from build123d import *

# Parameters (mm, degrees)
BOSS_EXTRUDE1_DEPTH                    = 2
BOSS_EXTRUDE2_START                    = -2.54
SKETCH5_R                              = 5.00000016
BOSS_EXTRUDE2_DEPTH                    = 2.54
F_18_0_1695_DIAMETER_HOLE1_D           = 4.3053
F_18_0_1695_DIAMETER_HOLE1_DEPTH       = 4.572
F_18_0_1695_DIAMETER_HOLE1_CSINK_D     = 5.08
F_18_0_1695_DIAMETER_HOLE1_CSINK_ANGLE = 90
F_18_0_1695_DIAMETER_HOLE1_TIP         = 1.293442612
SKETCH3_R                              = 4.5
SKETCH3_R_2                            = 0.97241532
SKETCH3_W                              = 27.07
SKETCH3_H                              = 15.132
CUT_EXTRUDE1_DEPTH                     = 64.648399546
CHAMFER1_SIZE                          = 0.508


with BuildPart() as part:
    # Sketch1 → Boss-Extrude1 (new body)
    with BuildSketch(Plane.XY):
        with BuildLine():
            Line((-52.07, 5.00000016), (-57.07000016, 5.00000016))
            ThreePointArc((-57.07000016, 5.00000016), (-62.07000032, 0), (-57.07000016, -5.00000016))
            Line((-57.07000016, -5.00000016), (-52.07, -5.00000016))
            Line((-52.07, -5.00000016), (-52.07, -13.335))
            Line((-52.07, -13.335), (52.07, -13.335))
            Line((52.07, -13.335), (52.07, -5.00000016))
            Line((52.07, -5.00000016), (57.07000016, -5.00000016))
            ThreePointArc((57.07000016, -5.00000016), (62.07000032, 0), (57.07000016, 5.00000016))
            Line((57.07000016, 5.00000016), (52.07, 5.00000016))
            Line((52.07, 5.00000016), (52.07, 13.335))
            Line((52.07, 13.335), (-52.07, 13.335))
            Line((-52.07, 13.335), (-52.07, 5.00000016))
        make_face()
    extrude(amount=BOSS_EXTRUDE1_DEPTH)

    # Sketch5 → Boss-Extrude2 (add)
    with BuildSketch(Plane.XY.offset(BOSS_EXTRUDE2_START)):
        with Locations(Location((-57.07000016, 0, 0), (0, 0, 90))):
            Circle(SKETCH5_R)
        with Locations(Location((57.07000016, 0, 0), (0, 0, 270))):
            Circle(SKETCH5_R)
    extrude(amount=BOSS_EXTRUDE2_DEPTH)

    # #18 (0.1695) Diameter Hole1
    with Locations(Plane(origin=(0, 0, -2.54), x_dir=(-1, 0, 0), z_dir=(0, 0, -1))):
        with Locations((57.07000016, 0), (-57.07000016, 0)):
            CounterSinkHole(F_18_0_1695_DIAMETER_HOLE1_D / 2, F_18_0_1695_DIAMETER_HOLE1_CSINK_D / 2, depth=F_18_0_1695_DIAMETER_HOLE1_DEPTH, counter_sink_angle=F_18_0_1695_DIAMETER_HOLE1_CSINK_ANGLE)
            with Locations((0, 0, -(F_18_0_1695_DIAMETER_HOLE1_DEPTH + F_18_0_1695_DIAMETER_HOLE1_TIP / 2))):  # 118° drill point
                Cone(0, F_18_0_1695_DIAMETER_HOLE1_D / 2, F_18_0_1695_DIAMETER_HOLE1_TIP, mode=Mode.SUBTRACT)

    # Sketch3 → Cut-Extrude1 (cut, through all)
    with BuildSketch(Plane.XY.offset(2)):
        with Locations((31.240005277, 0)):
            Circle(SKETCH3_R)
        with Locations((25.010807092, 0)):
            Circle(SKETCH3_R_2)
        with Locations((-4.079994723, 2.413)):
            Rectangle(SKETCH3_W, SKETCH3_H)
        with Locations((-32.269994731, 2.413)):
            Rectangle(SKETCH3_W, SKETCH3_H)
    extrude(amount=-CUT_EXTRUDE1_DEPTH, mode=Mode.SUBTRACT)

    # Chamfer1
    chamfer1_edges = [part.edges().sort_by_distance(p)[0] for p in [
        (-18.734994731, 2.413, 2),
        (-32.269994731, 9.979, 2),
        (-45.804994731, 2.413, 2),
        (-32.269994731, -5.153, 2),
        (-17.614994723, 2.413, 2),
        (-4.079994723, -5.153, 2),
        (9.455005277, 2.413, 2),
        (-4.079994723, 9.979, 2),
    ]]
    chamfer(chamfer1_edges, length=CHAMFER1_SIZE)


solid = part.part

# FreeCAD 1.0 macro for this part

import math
import FreeCAD as App
import Part
import Sketcher
from FreeCAD import Vector
Q = App.Units.Quantity


def edges_at(feature, points):
    """Names of the edges that pass closest to the given points."""
    edges = feature.Shape.Edges
    near = lambda p: min(range(len(edges)), key=lambda i: edges[i].distToShape(Part.Vertex(*p))[0])
    return sorted({f"Edge{near(p) + 1}" for p in points})


def add_polygon(sketch, points):
    """Adds a closed chain of lines whose ends are joined by coincident constraints."""
    first, n = sketch.GeometryCount, len(points)
    for a, b in zip(points, points[1:] + points[:1]):
        sketch.addGeometry(Part.LineSegment(App.Vector(*a, 0), App.Vector(*b, 0)), False)
    for i in range(n):
        sketch.addConstraint(Sketcher.Constraint("Coincident", first + i, 2, first + (i + 1) % n, 1))

doc = App.newDocument("Part")
body = doc.addObject("PartDesign::Body", "Body")

# Sketch on XY plane
sketch1 = body.newObject("Sketcher::SketchObject", "Sketch")
sketch1.AttachmentSupport = (doc.getObject("XY_Plane"), [""])
sketch1.MapMode = "FlatFace"
sketch1.addGeometry([
    Part.LineSegment(Vector(-52, 5, 0), Vector(-57, 5, 0)),  # 0
    Part.ArcOfCircle(Part.Circle(Vector(-57, 0, 0), Vector(0, 0, 1), 5), math.radians(90), math.radians(270)),  # 1
    Part.LineSegment(Vector(-57, -5, 0), Vector(-52, -5, 0)),  # 2
    Part.LineSegment(Vector(-52, -5, 0), Vector(-52, -13, 0)),  # 3
    Part.LineSegment(Vector(-52, -13, 0), Vector(52, -13, 0)),  # 4
    Part.LineSegment(Vector(52, -13, 0), Vector(52, -5, 0)),  # 5
    Part.LineSegment(Vector(52, -5, 0), Vector(57, -5, 0)),  # 6
    Part.ArcOfCircle(Part.Circle(Vector(57, 0, 0), Vector(0, 0, 1), 5), math.radians(-90), math.radians(90)),  # 7
    Part.LineSegment(Vector(57, 5, 0), Vector(52, 5, 0)),  # 8
    Part.LineSegment(Vector(52, 5, 0), Vector(52, 13, 0)),  # 9
    Part.LineSegment(Vector(52, 13, 0), Vector(-52, 13, 0)),  # 10
    Part.LineSegment(Vector(-52, 13, 0), Vector(-52, 5, 0)),  # 11
], False)
sketch1.addConstraint([
    Sketcher.Constraint("Tangent", 0, 2, 1, 1),
    Sketcher.Constraint("Tangent", 1, 2, 2, 1),
    Sketcher.Constraint("Coincident", 2, 2, 3, 1),
    Sketcher.Constraint("Coincident", 3, 2, 4, 1),
    Sketcher.Constraint("Coincident", 4, 2, 5, 1),
    Sketcher.Constraint("Coincident", 5, 2, 6, 1),
    Sketcher.Constraint("Tangent", 6, 2, 7, 1),
    Sketcher.Constraint("Tangent", 7, 2, 8, 1),
    Sketcher.Constraint("Coincident", 8, 2, 9, 1),
    Sketcher.Constraint("Coincident", 9, 2, 10, 1),
    Sketcher.Constraint("Coincident", 10, 2, 11, 1),
    Sketcher.Constraint("Coincident", 11, 2, 0, 1),
    Sketcher.Constraint("Horizontal", 0),
    Sketcher.Constraint("Horizontal", 2),
    Sketcher.Constraint("Vertical", 3),
    Sketcher.Constraint("Horizontal", 4),
    Sketcher.Constraint("Vertical", 5),
    Sketcher.Constraint("Horizontal", 6),
    Sketcher.Constraint("Horizontal", 8),
    Sketcher.Constraint("Vertical", 9),
    Sketcher.Constraint("Horizontal", 10),
    Sketcher.Constraint("Vertical", 11),
    Sketcher.Constraint("Equal", 1, 7),
    Sketcher.Constraint("Symmetric", 1, 3, 7, 3, -1, 1),
    Sketcher.Constraint("Symmetric", 3, 2, 9, 2, -1, 1),
    Sketcher.Constraint("Symmetric", 2, 2, 5, 2, -2),
    Sketcher.Constraint("Vertical", 3, 2, 10, 2),
    Sketcher.Constraint("Radius", 1, Q("5 mm")),
    Sketcher.Constraint("DistanceX", 0, 2, 0, 1, Q("5 mm")),
    Sketcher.Constraint("DistanceX", 4, 1, 4, 2, Q("104.14 mm")),
    Sketcher.Constraint("DistanceY", 3, 2, 3, 1, Q("8.335 mm")),
])
pad1 = body.newObject("PartDesign::Pad", "Pad")
pad1.Profile = sketch1
pad1.Length = 2

# Sketch on XY plane
sketch2 = body.newObject("Sketcher::SketchObject", "Sketch001")
sketch2.AttachmentSupport = (doc.getObject("XY_Plane"), [""])
sketch2.MapMode = "FlatFace"
sketch2.AttachmentOffset = App.Placement(Vector(0, 0, -2.54), App.Rotation())
sketch2.addGeometry([
    Part.Circle(Vector(-57, 0, 0), Vector(0, 0, 1), 5),
    Part.Circle(Vector(57, 0, 0), Vector(0, 0, 1), 5),
], False)
sketch2.addConstraint([
    Sketcher.Constraint("Equal", 0, 1),
    Sketcher.Constraint("Symmetric", 0, 3, 1, 3, -1, 1),
    Sketcher.Constraint("PointOnObject", 0, 3, -1),
    Sketcher.Constraint("Diameter", 0, Q("10 mm")),
    Sketcher.Constraint("DistanceX", 0, 3, -1, 1, Q("57.07 mm")),
])
pad2 = body.newObject("PartDesign::Pad", "Pad001")
pad2.Profile = sketch2
pad2.Length = 2.54

# Sketch on XY plane
sketch3 = body.newObject("Sketcher::SketchObject", "Sketch002")
sketch3.AttachmentSupport = (doc.getObject("XY_Plane"), [""])
sketch3.MapMode = "FlatFace"
sketch3.AttachmentOffset = App.Placement(Vector(0, 0, -2.54), App.Rotation())
sketch3.addGeometry([
    Part.Circle(Vector(-57.1, 0, 0), Vector(0, 0, 1), 2.2),
    Part.Circle(Vector(57.1, 0, 0), Vector(0, 0, 1), 2.2),
], False)
sketch3.addConstraint([
    Sketcher.Constraint("Equal", 0, 1),
    Sketcher.Constraint("Symmetric", 0, 3, 1, 3, -1, 1),
    Sketcher.Constraint("PointOnObject", 0, 3, -1),
    Sketcher.Constraint("Diameter", 0, Q("4.3053 mm")),
    Sketcher.Constraint("DistanceX", 0, 3, -1, 1, Q("57.07 mm")),
])
doc.recompute()
hole = body.newObject("PartDesign::Hole", "Hole")
hole.Profile = sketch3
hole.ThreadType = "None"
hole.Diameter = 4.3053
hole.DepthType = "Dimension"
hole.Depth = 4.572
hole.DrillPoint = "Angled"
hole.DrillPointAngle = 118
hole.HoleCutType = "Countersink"
hole.HoleCutDiameter = 5.08
hole.HoleCutCountersinkAngle = 90
hole.Reversed = True

# Sketch on XY plane
sketch4 = body.newObject("Sketcher::SketchObject", "Sketch003")
sketch4.AttachmentSupport = (doc.getObject("XY_Plane"), [""])
sketch4.MapMode = "FlatFace"
sketch4.AttachmentOffset = App.Placement(Vector(0, 0, 2), App.Rotation())
sketch4.addGeometry(Part.Circle(Vector(31.2, 0, 0), Vector(0, 0, 1), 4.5), False)  # 0
sketch4.addGeometry(Part.Circle(Vector(25, 0, 0), Vector(0, 0, 1), 1), False)  # 1
add_polygon(sketch4, [(-17.6, 10), (-17.6, -5.2), (9.5, -5.2), (9.5, 10)])  # lines 2-5
add_polygon(sketch4, [(-45.8, 10), (-45.8, -5.2), (-18.7, -5.2), (-18.7, 10)])  # lines 6-9
sketch4.addConstraint([
    Sketcher.Constraint("Vertical", 2),
    Sketcher.Constraint("Horizontal", 3),
    Sketcher.Constraint("Vertical", 4),
    Sketcher.Constraint("Horizontal", 5),
    Sketcher.Constraint("Vertical", 6),
    Sketcher.Constraint("Horizontal", 7),
    Sketcher.Constraint("Vertical", 8),
    Sketcher.Constraint("Horizontal", 9),
    Sketcher.Constraint("PointOnObject", 0, 3, -1),
    Sketcher.Constraint("PointOnObject", 1, 3, -1),
    Sketcher.Constraint("Horizontal", 3, 2, 6, 2),
    Sketcher.Constraint("Horizontal", 5, 2, 8, 2),
    Sketcher.Constraint("Equal", 5, 7),
    Sketcher.Constraint("Diameter", 0, Q("9 mm")),
    Sketcher.Constraint("DistanceX", 3, 1, 3, 2, Q("27.07 mm")),
    Sketcher.Constraint("Diameter", 1, Q("1.944831 mm")),
    Sketcher.Constraint("DistanceY", 2, 2, 2, 1, Q("15.132 mm")),
    Sketcher.Constraint("DistanceX", 6, 2, 2, 2, Q("28.19 mm")),
    Sketcher.Constraint("DistanceY", 2, 2, -1, 1, Q("5.153 mm")),
    Sketcher.Constraint("DistanceX", 2, 2, 0, 3, Q("48.855 mm")),
    Sketcher.Constraint("DistanceX", 1, 3, 0, 3, Q("6.229198 mm")),
    Sketcher.Constraint("DistanceX", -1, 1, 0, 3, Q("31.240005 mm")),
])
pocket1 = body.newObject("PartDesign::Pocket", "Pocket")
pocket1.Profile = sketch4
pocket1.Type = "ThroughAll"
doc.recompute()

chamfer = body.newObject("PartDesign::Chamfer", "Chamfer")
chamfer.Base = (pocket1, edges_at(pocket1, [
    (-18.735, 2.413, 2),
    (-32.27, 9.979, 2),
    (-45.805, 2.413, 2),
    (-32.27, -5.153, 2),
    (-17.615, 2.413, 2),
    (-4.08, -5.153, 2),
    (9.455, 2.413, 2),
    (-4.08, 9.979, 2),
]))
chamfer.Size = 0.508

doc.recompute()
